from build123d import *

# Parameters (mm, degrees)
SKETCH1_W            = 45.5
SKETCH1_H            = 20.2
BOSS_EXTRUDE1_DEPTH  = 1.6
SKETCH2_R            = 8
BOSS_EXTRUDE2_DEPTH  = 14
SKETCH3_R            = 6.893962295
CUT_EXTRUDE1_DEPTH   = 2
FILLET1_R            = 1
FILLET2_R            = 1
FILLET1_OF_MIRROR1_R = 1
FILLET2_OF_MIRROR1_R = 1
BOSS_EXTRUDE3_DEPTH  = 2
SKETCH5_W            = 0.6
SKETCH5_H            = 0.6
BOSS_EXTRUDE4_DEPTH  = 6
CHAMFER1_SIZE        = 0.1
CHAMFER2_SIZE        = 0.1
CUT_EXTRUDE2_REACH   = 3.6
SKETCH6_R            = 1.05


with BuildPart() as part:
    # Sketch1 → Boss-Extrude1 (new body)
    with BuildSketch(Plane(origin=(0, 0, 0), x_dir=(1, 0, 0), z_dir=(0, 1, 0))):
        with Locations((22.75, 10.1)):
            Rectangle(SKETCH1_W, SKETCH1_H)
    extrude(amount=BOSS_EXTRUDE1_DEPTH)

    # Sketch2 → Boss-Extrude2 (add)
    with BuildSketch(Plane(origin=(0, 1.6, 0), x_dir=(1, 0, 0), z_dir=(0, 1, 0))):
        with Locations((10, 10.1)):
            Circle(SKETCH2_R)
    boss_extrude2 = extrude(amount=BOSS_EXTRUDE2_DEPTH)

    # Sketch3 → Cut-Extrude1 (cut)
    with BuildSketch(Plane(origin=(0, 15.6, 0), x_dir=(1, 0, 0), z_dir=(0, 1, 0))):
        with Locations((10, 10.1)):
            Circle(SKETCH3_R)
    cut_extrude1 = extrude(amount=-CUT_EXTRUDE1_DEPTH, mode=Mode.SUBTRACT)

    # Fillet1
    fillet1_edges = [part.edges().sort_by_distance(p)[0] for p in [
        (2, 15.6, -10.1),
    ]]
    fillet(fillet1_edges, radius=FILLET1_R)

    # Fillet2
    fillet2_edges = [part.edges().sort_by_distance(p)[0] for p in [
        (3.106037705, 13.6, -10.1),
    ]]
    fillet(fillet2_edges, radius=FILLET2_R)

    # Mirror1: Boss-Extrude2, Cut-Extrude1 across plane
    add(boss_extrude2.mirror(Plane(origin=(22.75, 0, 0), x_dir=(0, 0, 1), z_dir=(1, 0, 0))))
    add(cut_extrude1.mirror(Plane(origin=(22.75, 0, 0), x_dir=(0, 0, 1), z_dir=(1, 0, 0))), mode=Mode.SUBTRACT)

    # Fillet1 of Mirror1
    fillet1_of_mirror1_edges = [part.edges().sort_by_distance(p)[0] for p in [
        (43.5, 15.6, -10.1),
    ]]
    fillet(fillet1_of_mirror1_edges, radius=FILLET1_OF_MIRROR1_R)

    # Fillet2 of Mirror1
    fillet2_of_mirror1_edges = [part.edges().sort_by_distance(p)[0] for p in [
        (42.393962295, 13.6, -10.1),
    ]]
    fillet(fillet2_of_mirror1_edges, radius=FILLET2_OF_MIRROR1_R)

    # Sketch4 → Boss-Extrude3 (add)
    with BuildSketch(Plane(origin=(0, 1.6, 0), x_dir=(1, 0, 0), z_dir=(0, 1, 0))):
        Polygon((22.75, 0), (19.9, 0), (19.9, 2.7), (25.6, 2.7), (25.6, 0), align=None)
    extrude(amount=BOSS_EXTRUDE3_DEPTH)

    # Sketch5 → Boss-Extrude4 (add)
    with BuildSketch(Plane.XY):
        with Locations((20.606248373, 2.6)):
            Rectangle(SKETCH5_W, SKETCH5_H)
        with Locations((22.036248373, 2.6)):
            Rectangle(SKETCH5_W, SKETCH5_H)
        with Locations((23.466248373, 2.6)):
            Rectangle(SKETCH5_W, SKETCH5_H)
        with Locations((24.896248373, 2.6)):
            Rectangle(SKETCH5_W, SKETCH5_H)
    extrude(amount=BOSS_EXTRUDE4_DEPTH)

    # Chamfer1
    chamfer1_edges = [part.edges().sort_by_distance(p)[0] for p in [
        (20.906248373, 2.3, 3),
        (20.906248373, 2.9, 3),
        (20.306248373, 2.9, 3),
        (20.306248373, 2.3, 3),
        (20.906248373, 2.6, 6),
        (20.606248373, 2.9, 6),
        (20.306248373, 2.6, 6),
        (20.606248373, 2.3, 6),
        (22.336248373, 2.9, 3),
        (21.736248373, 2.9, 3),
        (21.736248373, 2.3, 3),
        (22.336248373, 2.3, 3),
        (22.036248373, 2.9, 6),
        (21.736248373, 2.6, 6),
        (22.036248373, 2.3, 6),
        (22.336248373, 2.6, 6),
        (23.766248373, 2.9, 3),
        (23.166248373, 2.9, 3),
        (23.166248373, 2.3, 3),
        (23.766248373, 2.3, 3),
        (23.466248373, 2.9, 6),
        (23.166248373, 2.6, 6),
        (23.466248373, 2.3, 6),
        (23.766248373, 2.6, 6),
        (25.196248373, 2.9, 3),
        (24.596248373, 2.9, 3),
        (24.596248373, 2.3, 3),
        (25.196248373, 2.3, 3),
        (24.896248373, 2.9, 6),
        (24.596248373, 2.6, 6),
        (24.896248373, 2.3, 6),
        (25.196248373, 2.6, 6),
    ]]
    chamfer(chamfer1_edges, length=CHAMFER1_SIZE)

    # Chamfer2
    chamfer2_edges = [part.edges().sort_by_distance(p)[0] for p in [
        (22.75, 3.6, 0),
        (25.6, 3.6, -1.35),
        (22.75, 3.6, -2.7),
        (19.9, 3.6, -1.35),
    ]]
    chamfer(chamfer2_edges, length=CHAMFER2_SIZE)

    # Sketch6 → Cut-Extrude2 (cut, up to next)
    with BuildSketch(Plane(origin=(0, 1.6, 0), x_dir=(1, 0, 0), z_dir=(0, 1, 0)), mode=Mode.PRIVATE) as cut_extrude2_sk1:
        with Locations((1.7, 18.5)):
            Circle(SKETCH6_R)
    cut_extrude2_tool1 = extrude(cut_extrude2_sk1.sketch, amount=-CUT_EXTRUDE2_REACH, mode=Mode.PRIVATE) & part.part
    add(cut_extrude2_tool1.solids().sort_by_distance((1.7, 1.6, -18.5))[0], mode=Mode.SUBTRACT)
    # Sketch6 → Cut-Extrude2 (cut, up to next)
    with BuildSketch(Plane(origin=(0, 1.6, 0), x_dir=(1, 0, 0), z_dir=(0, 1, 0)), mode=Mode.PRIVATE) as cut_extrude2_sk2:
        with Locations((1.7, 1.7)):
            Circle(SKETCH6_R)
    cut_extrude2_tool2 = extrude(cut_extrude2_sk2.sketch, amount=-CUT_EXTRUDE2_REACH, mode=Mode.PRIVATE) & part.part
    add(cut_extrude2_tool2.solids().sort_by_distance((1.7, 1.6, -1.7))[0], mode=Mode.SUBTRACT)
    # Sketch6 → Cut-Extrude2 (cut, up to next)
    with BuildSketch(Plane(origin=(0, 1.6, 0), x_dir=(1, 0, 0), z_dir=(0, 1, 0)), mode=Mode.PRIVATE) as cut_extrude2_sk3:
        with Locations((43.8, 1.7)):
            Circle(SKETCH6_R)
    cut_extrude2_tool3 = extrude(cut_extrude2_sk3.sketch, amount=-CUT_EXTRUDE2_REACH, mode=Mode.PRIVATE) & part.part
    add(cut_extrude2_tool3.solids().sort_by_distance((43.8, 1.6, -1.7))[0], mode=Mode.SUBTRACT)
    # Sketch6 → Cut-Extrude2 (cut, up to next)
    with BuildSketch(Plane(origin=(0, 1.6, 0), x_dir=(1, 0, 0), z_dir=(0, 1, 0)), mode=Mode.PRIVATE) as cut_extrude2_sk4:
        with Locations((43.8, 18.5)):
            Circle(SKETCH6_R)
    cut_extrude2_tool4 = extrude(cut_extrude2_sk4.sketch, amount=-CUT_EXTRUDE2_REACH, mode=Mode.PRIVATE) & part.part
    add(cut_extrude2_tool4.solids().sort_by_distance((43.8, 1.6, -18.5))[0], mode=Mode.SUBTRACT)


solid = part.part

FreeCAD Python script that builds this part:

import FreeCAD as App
import Part
import Sketcher


def edges_at(feature, points):
    """Names of the edges that pass closest to the given points."""
    edges = feature.Shape.Edges
    near = lambda p: min(range(len(edges)), key=lambda i: edges[i].distToShape(Part.Vertex(*p))[0])
    return sorted({f"Edge{near(p) + 1}" for p in points})


def add_polygon(sketch, points):
    """Adds a closed chain of lines whose ends are joined by coincident constraints."""
    first, n = sketch.GeometryCount, len(points)
    for a, b in zip(points, points[1:] + points[:1]):
        sketch.addGeometry(Part.LineSegment(App.Vector(*a, 0), App.Vector(*b, 0)), False)
    for i in range(n):
        sketch.addConstraint(Sketcher.Constraint("Coincident", first + i, 2, first + (i + 1) % n, 1))

doc = App.newDocument("Part")
body = doc.addObject("PartDesign::Body", "Body")

# Sketch on XZ plane
sketch1 = body.newObject("Sketcher::SketchObject", "Sketch")
sketch1.AttachmentSupport = (doc.getObject("XZ_Plane"), [""])
sketch1.MapMode = "FlatFace"
add_polygon(sketch1, [(0, -20), (0, 0), (46, 0), (46, -20)])  # lines 0-3
sketch1.addConstraint([
    Sketcher.Constraint("Vertical", 0),
    Sketcher.Constraint("Horizontal", 1),
    Sketcher.Constraint("Vertical", 2),
    Sketcher.Constraint("Horizontal", 3),
    Sketcher.Constraint("Coincident", 0, 2, -1, 1),
    Sketcher.Constraint("DistanceX", 1, 1, 1, 2, 45.5),
    Sketcher.Constraint("DistanceY", 0, 1, 0, 2, 20.2),
])
pad1 = body.newObject("PartDesign::Pad", "Pad")
pad1.Profile = sketch1
pad1.Length = 1.6
pad1.Reversed = True

# Sketch on XZ plane
sketch2 = body.newObject("Sketcher::SketchObject", "Sketch001")
sketch2.AttachmentSupport = (doc.getObject("XZ_Plane"), [""])
sketch2.MapMode = "FlatFace"
sketch2.AttachmentOffset = App.Placement(App.Vector(0, 0, -1.6), App.Rotation())
sketch2.addGeometry(Part.Circle(App.Vector(10, -10, 0), App.Vector(0, 0, 1), 8), False)
sketch2.addConstraint([
    Sketcher.Constraint("Diameter", 0, 16.0),
    Sketcher.Constraint("DistanceX", -1, 1, 0, 3, 10.0),
    Sketcher.Constraint("DistanceY", 0, 3, -1, 1, 10.1),
])
pad2 = body.newObject("PartDesign::Pad", "Pad001")
pad2.Profile = sketch2
pad2.Length = 14
pad2.Reversed = True

# Sketch on XZ plane
sketch3 = body.newObject("Sketcher::SketchObject", "Sketch002")
sketch3.AttachmentSupport = (doc.getObject("XZ_Plane"), [""])
sketch3.MapMode = "FlatFace"
sketch3.AttachmentOffset = App.Placement(App.Vector(0, 0, -15.6), App.Rotation())
sketch3.addGeometry(Part.Circle(App.Vector(10, -10, 0), App.Vector(0, 0, 1), 7), False)
sketch3.addConstraint([
    Sketcher.Constraint("DistanceX", -1, 1, 0, 3, 10.0),
    Sketcher.Constraint("DistanceY", 0, 3, -1, 1, 10.1),
    Sketcher.Constraint("Diameter", 0, 13.787925),
])
pocket1 = body.newObject("PartDesign::Pocket", "Pocket")
pocket1.Profile = sketch3
pocket1.Length = 2
pocket1.Reversed = True
doc.recompute()

fillet = body.newObject("PartDesign::Fillet", "Fillet")
fillet.Base = (pocket1, edges_at(pocket1, [(2, 15.6, -10.1)]))
fillet.Radius = 1
doc.recompute()

fillet2 = body.newObject("PartDesign::Fillet", "Fillet001")
fillet2.Base = (fillet, edges_at(fillet, [(3.106, 13.6, -10.1)]))
fillet2.Radius = 1
doc.recompute()

datumplane = body.newObject("PartDesign::Plane", "DatumPlane")
datumplane.AttachmentSupport = (doc.getObject("YZ_Plane"), [""])
datumplane.MapMode = "FlatFace"
datumplane.AttachmentOffset = App.Placement(App.Vector(0, 0, 22.75), App.Rotation())
mirrored = body.newObject("PartDesign::Mirrored", "Mirrored")
mirrored.Originals = [pad2, pocket1]
mirrored.MirrorPlane = (datumplane, [""])
body.Tip = mirrored
doc.recompute()

fillet3 = body.newObject("PartDesign::Fillet", "Fillet002")
fillet3.Base = (mirrored, edges_at(mirrored, [(43.5, 15.6, -10.1)]))
fillet3.Radius = 1
doc.recompute()

fillet4 = body.newObject("PartDesign::Fillet", "Fillet003")
fillet4.Base = (fillet3, edges_at(fillet3, [(42.394, 13.6, -10.1)]))
fillet4.Radius = 1

# Sketch on XZ plane
sketch4 = body.newObject("Sketcher::SketchObject", "Sketch003")
sketch4.AttachmentSupport = (doc.getObject("XZ_Plane"), [""])
sketch4.MapMode = "FlatFace"
sketch4.AttachmentOffset = App.Placement(App.Vector(0, 0, -1.6), App.Rotation())
add_polygon(sketch4, [(19.9, 0), (25.6, 0), (25.6, -2.7), (19.9, -2.7)])  # lines 0-3
sketch4.addConstraint([
    Sketcher.Constraint("Horizontal", 0),
    Sketcher.Constraint("Vertical", 1),
    Sketcher.Constraint("Horizontal", 2),
    Sketcher.Constraint("Vertical", 3),
    Sketcher.Constraint("PointOnObject", 0, 2, -1),
    Sketcher.Constraint("DistanceX", 0, 1, 0, 2, 5.7),
    Sketcher.Constraint("DistanceY", 1, 2, 1, 1, 2.7),
    Sketcher.Constraint("DistanceX", -1, 1, 0, 2, 25.6),
])
pad3 = body.newObject("PartDesign::Pad", "Pad002")
pad3.Profile = sketch4
pad3.Length = 2
pad3.Reversed = True

# Sketch on XY plane
sketch5 = body.newObject("Sketcher::SketchObject", "Sketch004")
sketch5.AttachmentSupport = (doc.getObject("XY_Plane"), [""])
sketch5.MapMode = "FlatFace"
add_polygon(sketch5, [(20.3, 2.9), (20.3, 2.3), (20.9, 2.3), (20.9, 2.9)])  # lines 0-3
add_polygon(sketch5, [(21.7, 2.9), (21.7, 2.3), (22.3, 2.3), (22.3, 2.9)])  # lines 4-7
add_polygon(sketch5, [(23.2, 2.9), (23.2, 2.3), (23.8, 2.3), (23.8, 2.9)])  # lines 8-11
add_polygon(sketch5, [(24.6, 2.9), (24.6, 2.3), (25.2, 2.3), (25.2, 2.9)])  # lines 12-15
sketch5.addConstraint([
    Sketcher.Constraint("Vertical", 0),
    Sketcher.Constraint("Horizontal", 1),
    Sketcher.Constraint("Vertical", 2),
    Sketcher.Constraint("Horizontal", 3),
    Sketcher.Constraint("Vertical", 4),
    Sketcher.Constraint("Horizontal", 5),
    Sketcher.Constraint("Vertical", 6),
    Sketcher.Constraint("Horizontal", 7),
    Sketcher.Constraint("Vertical", 8),
    Sketcher.Constraint("Horizontal", 9),
    Sketcher.Constraint("Vertical", 10),
    Sketcher.Constraint("Horizontal", 11),
    Sketcher.Constraint("Vertical", 12),
    Sketcher.Constraint("Horizontal", 13),
    Sketcher.Constraint("Vertical", 14),
    Sketcher.Constraint("Horizontal", 15),
    Sketcher.Constraint("Horizontal", 1, 2, 4, 2),
    Sketcher.Constraint("Horizontal", 3, 2, 6, 2),
    Sketcher.Constraint("Horizontal", 5, 2, 8, 2),
    Sketcher.Constraint("Horizontal", 7, 2, 10, 2),
    Sketcher.Constraint("Horizontal", 9, 2, 12, 2),
    Sketcher.Constraint("Horizontal", 11, 2, 14, 2),
    Sketcher.Constraint("Equal", 3, 5),
    Sketcher.Constraint("Equal", 7, 9),
    Sketcher.Constraint("Equal", 11, 13),
    Sketcher.Constraint("Equal", 15, 0),
    Sketcher.Constraint("DistanceX", 1, 1, 1, 2, 0.6),
    Sketcher.Constraint("DistanceY", -1, 1, 0, 2, 2.3),
    Sketcher.Constraint("DistanceX", 1, 2, 4, 2, 0.83),
    Sketcher.Constraint("DistanceX", 5, 2, 8, 2, 0.83),
    Sketcher.Constraint("DistanceX", 9, 2, 12, 2, 0.83),
    Sketcher.Constraint("DistanceX", -1, 1, 0, 2, 20.306248),
])
pad4 = body.newObject("PartDesign::Pad", "Pad003")
pad4.Profile = sketch5
pad4.Length = 6
doc.recompute()

chamfer = body.newObject("PartDesign::Chamfer", "Chamfer")
chamfer.Base = (pad4, edges_at(pad4, [
    (20.906, 2.3, 3),
    (20.906, 2.9, 3),
    (20.306, 2.9, 3),
    (20.306, 2.3, 3),
    (20.906, 2.6, 6),
    (20.606, 2.9, 6),
    (20.306, 2.6, 6),
    (20.606, 2.3, 6),
    (22.336, 2.9, 3),
    (21.736, 2.9, 3),
    (21.736, 2.3, 3),
    (22.336, 2.3, 3),
    (22.036, 2.9, 6),
    (21.736, 2.6, 6),
    (22.036, 2.3, 6),
    (22.336, 2.6, 6),
    (23.766, 2.9, 3),
    (23.166, 2.9, 3),
    (23.166, 2.3, 3),
    (23.766, 2.3, 3),
    (23.466, 2.9, 6),
    (23.166, 2.6, 6),
    (23.466, 2.3, 6),
    (23.766, 2.6, 6),
    (25.196, 2.9, 3),
    (24.596, 2.9, 3),
    (24.596, 2.3, 3),
    (25.196, 2.3, 3),
    (24.896, 2.9, 6),
    (24.596, 2.6, 6),
    (24.896, 2.3, 6),
    (25.196, 2.6, 6),
]))
chamfer.Size = 0.1
doc.recompute()

chamfer2 = body.newObject("PartDesign::Chamfer", "Chamfer001")
chamfer2.Base = (chamfer, edges_at(chamfer, [
    (22.75, 3.6, 0),
    (25.6, 3.6, -1.35),
    (22.75, 3.6, -2.7),
    (19.9, 3.6, -1.35),
]))
chamfer2.Size = 0.1

# Sketch on XZ plane
sketch6 = body.newObject("Sketcher::SketchObject", "Sketch005")
sketch6.AttachmentSupport = (doc.getObject("XZ_Plane"), [""])
sketch6.MapMode = "FlatFace"
sketch6.AttachmentOffset = App.Placement(App.Vector(0, 0, -1.6), App.Rotation())
sketch6.addGeometry(Part.Circle(App.Vector(1.7, -18.5, 0), App.Vector(0, 0, 1), 1.1), False)
sketch6.addConstraint([
    Sketcher.Constraint("Diameter", 0, 2.1),
    Sketcher.Constraint("DistanceX", -1, 1, 0, 3, 1.7),
    Sketcher.Constraint("DistanceY", 0, 3, -1, 1, 18.5),
])
pocket2 = body.newObject("PartDesign::Pocket", "Pocket001")
pocket2.Profile = sketch6
pocket2.Type = "UpToFirst"
pocket2.Reversed = True

# Sketch on XZ plane
sketch7 = body.newObject("Sketcher::SketchObject", "Sketch006")
sketch7.AttachmentSupport = (doc.getObject("XZ_Plane"), [""])
sketch7.MapMode = "FlatFace"
sketch7.AttachmentOffset = App.Placement(App.Vector(0, 0, -1.6), App.Rotation())
sketch7.addGeometry(Part.Circle(App.Vector(1.7, -1.7, 0), App.Vector(0, 0, 1), 1.1), False)
sketch7.addConstraint([
    Sketcher.Constraint("Diameter", 0, 2.1),
    Sketcher.Constraint("DistanceX", -1, 1, 0, 3, 1.7),
    Sketcher.Constraint("DistanceY", 0, 3, -1, 1, 1.7),
])
pocket3 = body.newObject("PartDesign::Pocket", "Pocket002")
pocket3.Profile = sketch7
pocket3.Type = "UpToFirst"
pocket3.Reversed = True

# Sketch on XZ plane
sketch8 = body.newObject("Sketcher::SketchObject", "Sketch007")
sketch8.AttachmentSupport = (doc.getObject("XZ_Plane"), [""])
sketch8.MapMode = "FlatFace"
sketch8.AttachmentOffset = App.Placement(App.Vector(0, 0, -1.6), App.Rotation())
sketch8.addGeometry(Part.Circle(App.Vector(43.8, -1.7, 0), App.Vector(0, 0, 1), 1.1), False)
sketch8.addConstraint([
    Sketcher.Constraint("Diameter", 0, 2.1),
    Sketcher.Constraint("DistanceX", -1, 1, 0, 3, 43.8),
    Sketcher.Constraint("DistanceY", 0, 3, -1, 1, 1.7),
])
pocket4 = body.newObject("PartDesign::Pocket", "Pocket003")
pocket4.Profile = sketch8
pocket4.Type = "UpToFirst"
pocket4.Reversed = True

# Sketch on XZ plane
sketch9 = body.newObject("Sketcher::SketchObject", "Sketch008")
sketch9.AttachmentSupport = (doc.getObject("XZ_Plane"), [""])
sketch9.MapMode = "FlatFace"
sketch9.AttachmentOffset = App.Placement(App.Vector(0, 0, -1.6), App.Rotation())
sketch9.addGeometry(Part.Circle(App.Vector(43.8, -18.5, 0), App.Vector(0, 0, 1), 1.1), False)
sketch9.addConstraint([
    Sketcher.Constraint("Diameter", 0, 2.1),
    Sketcher.Constraint("DistanceX", -1, 1, 0, 3, 43.8),
    Sketcher.Constraint("DistanceY", 0, 3, -1, 1, 18.5),
])
pocket5 = body.newObject("PartDesign::Pocket", "Pocket004")
pocket5.Profile = sketch9
pocket5.Type = "UpToFirst"
pocket5.Reversed = True

doc.recompute()
